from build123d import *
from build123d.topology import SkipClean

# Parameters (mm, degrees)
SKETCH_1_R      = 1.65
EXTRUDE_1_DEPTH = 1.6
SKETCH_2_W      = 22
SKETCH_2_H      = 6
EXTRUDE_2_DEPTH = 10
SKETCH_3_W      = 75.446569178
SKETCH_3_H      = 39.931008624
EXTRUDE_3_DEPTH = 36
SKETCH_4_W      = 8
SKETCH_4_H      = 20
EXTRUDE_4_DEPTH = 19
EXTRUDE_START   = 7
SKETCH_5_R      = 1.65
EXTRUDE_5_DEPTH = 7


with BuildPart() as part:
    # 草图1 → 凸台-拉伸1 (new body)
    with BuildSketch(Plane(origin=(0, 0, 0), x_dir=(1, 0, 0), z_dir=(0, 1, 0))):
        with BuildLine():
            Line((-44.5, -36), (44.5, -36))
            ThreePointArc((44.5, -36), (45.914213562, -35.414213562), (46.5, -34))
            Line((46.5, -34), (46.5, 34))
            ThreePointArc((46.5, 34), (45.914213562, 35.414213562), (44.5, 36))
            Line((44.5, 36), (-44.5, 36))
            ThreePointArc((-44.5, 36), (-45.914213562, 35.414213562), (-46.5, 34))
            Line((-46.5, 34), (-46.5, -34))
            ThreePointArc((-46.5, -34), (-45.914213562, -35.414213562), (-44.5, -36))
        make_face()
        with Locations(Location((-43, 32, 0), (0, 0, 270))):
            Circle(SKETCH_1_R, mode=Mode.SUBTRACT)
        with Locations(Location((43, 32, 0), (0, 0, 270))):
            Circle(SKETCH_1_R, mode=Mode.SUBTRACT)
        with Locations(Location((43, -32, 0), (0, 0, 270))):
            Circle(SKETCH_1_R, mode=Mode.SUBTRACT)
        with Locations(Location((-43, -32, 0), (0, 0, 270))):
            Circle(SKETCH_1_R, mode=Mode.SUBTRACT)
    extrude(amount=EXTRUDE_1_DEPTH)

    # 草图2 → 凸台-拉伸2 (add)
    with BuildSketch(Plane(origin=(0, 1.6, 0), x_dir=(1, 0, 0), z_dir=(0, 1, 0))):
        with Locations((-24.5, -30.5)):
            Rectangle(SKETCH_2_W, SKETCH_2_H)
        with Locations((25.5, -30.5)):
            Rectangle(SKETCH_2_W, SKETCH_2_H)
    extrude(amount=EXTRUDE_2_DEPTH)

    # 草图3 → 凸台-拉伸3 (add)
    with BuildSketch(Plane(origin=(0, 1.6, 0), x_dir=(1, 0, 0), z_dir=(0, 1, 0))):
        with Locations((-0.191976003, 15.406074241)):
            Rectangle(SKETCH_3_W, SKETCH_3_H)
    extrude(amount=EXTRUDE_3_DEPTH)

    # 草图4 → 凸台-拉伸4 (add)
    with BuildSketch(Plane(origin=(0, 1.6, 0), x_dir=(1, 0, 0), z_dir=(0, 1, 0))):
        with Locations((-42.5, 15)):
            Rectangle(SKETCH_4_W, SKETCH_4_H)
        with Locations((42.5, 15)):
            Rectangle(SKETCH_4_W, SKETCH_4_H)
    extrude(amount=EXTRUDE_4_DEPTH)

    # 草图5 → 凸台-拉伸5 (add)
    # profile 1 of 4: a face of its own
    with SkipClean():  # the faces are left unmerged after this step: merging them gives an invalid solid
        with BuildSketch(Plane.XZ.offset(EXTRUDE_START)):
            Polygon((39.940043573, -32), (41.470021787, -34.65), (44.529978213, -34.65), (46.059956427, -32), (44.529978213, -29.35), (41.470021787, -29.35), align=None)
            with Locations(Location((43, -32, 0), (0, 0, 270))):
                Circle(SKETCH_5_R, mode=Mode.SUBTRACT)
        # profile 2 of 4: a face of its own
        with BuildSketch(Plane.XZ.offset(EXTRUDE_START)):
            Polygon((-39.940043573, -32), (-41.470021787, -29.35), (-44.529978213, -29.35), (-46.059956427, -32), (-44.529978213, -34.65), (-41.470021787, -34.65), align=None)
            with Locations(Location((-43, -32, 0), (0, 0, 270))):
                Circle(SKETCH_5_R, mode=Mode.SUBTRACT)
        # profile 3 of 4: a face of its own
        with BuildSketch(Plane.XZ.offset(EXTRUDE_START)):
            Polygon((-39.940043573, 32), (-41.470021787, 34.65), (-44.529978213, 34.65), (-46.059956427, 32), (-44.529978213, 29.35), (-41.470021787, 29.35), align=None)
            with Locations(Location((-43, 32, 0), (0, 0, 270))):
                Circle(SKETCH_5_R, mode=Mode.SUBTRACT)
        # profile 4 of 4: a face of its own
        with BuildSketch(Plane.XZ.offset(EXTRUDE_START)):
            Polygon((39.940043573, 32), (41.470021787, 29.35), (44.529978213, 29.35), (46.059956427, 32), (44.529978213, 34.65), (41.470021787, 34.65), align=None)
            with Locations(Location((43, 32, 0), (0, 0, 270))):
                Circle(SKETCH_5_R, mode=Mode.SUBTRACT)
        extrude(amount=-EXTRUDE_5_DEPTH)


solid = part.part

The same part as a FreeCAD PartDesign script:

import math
import FreeCAD as App
import Part
import Sketcher
from FreeCAD import Vector
Q = App.Units.Quantity

doc = App.newDocument("Part")
body = doc.addObject("PartDesign::Body", "Body")

# Sketch on XZ plane
sketch1 = body.newObject("Sketcher::SketchObject", "Sketch")
sketch1.AttachmentSupport = (doc.getObject("XZ_Plane"), [""])
sketch1.MapMode = "FlatFace"
sketch1.addGeometry([
    Part.LineSegment(Vector(-44.5, 36, 0), Vector(44.5, 36, 0)),  # 0
    Part.ArcOfCircle(Part.Circle(Vector(44.5, 34, 0), Vector(0, 0, 1), 2), math.radians(0), math.radians(90)),  # 1
    Part.LineSegment(Vector(46.5, 34, 0), Vector(46.5, -34, 0)),  # 2
    Part.ArcOfCircle(Part.Circle(Vector(44.5, -34, 0), Vector(0, 0, 1), 2), math.radians(-90), math.radians(0)),  # 3
    Part.LineSegment(Vector(44.5, -36, 0), Vector(-44.5, -36, 0)),  # 4
    Part.ArcOfCircle(Part.Circle(Vector(-44.5, -34, 0), Vector(0, 0, 1), 2), math.radians(-180), math.radians(-90)),  # 5
    Part.LineSegment(Vector(-46.5, -34, 0), Vector(-46.5, 34, 0)),  # 6
    Part.ArcOfCircle(Part.Circle(Vector(-44.5, 34, 0), Vector(0, 0, 1), 2), math.radians(90), math.radians(180)),  # 7
    Part.Circle(Vector(-43, 32, 0), Vector(0, 0, 1), 1.6),  # 8
    Part.Circle(Vector(43, 32, 0), Vector(0, 0, 1), 1.6),  # 9
    Part.Circle(Vector(-43, -32, 0), Vector(0, 0, 1), 1.6),  # 10
    Part.Circle(Vector(43, -32, 0), Vector(0, 0, 1), 1.6),  # 11
], False)
sketch1.addConstraint([
    Sketcher.Constraint("Tangent", 0, 2, 1, 2),
    Sketcher.Constraint("Tangent", 1, 1, 2, 1),
    Sketcher.Constraint("Tangent", 2, 2, 3, 2),
    Sketcher.Constraint("Tangent", 3, 1, 4, 1),
    Sketcher.Constraint("Tangent", 4, 2, 5, 2),
    Sketcher.Constraint("Tangent", 5, 1, 6, 1),
    Sketcher.Constraint("Tangent", 6, 2, 7, 2),
    Sketcher.Constraint("Tangent", 7, 1, 0, 1),
    Sketcher.Constraint("Horizontal", 0),
    Sketcher.Constraint("Vertical", 2),
    Sketcher.Constraint("Horizontal", 4),
    Sketcher.Constraint("Vertical", 6),
    Sketcher.Constraint("Equal", 1, 3),
    Sketcher.Constraint("Equal", 3, 5),
    Sketcher.Constraint("Equal", 5, 7),
    Sketcher.Constraint("Equal", 8, 9),
    Sketcher.Constraint("Equal", 9, 10),
    Sketcher.Constraint("Equal", 10, 11),
    Sketcher.Constraint("Symmetric", 1, 3, 5, 3, -1, 1),
    Sketcher.Constraint("Symmetric", 9, 3, 10, 3, -1, 1),
    Sketcher.Constraint("Symmetric", 8, 3, 11, 3, -1, 1),
    Sketcher.Constraint("Symmetric", 8, 3, 9, 3, -2),
    Sketcher.Constraint("Radius", 1, 2.0),
    Sketcher.Constraint("Diameter", 8, 3.3),
    Sketcher.Constraint("DistanceX", 0, 1, 0, 2, 89.0),
    Sketcher.Constraint("DistanceY", 2, 2, 2, 1, 68.0),
    Sketcher.Constraint("DistanceX", 8, 3, -1, 1, 43.0),
    Sketcher.Constraint("DistanceY", -1, 1, 8, 3, 32.0),
])
pad1 = body.newObject("PartDesign::Pad", "Pad")
pad1.Profile = sketch1
pad1.Length = 1.6
pad1.Reversed = True

# Sketch on XZ plane
sketch2 = body.newObject("Sketcher::SketchObject", "Sketch001")
sketch2.AttachmentSupport = (doc.getObject("XZ_Plane"), [""])
sketch2.MapMode = "FlatFace"
sketch2.AttachmentOffset = App.Placement(Vector(0, 0, -1.6), App.Rotation())
sketch2.addGeometry([
    Part.LineSegment(Vector(-36, 28, 0), Vector(-36, 34, 0)),  # 0
    Part.LineSegment(Vector(-36, 34, 0), Vector(-14, 34, 0)),  # 1
    Part.LineSegment(Vector(-14, 34, 0), Vector(-14, 28, 0)),  # 2
    Part.LineSegment(Vector(-14, 28, 0), Vector(-36, 28, 0)),  # 3
    Part.LineSegment(Vector(14, 28, 0), Vector(14, 34, 0)),  # 4
    Part.LineSegment(Vector(14, 34, 0), Vector(36, 34, 0)),  # 5
    Part.LineSegment(Vector(36, 34, 0), Vector(36, 28, 0)),  # 6
    Part.LineSegment(Vector(36, 28, 0), Vector(14, 28, 0)),  # 7
], False)
sketch2.addConstraint([
    Sketcher.Constraint("Coincident", 0, 2, 1, 1),
    Sketcher.Constraint("Coincident", 1, 2, 2, 1),
    Sketcher.Constraint("Coincident", 2, 2, 3, 1),
    Sketcher.Constraint("Coincident", 3, 2, 0, 1),
    Sketcher.Constraint("Coincident", 4, 2, 5, 1),
    Sketcher.Constraint("Coincident", 5, 2, 6, 1),
    Sketcher.Constraint("Coincident", 6, 2, 7, 1),
    Sketcher.Constraint("Coincident", 7, 2, 4, 1),
    Sketcher.Constraint("Vertical", 0),
    Sketcher.Constraint("Horizontal", 1),
    Sketcher.Constraint("Vertical", 2),
    Sketcher.Constraint("Horizontal", 3),
    Sketcher.Constraint("Vertical", 4),
    Sketcher.Constraint("Horizontal", 5),
    Sketcher.Constraint("Vertical", 6),
    Sketcher.Constraint("Horizontal", 7),
    Sketcher.Constraint("Horizontal", 1, 2, 4, 2),
    Sketcher.Constraint("Horizontal", 3, 2, 6, 2),
    Sketcher.Constraint("Equal", 3, 5),
    Sketcher.Constraint("DistanceX", 1, 1, 1, 2, 22.0),
    Sketcher.Constraint("DistanceY", 0, 1, 0, 2, 6.0),
    Sketcher.Constraint("DistanceX", 1, 2, 4, 2, 28.0),
    Sketcher.Constraint("DistanceX", 0, 2, -1, 1, 35.5),
    Sketcher.Constraint("DistanceY", -1, 1, 0, 2, 33.5),
])
pad2 = body.newObject("PartDesign::Pad", "Pad001")
pad2.Profile = sketch2
pad2.Length = 10
pad2.Reversed = True

# Sketch on XZ plane
sketch3 = body.newObject("Sketcher::SketchObject", "Sketch002")
sketch3.AttachmentSupport = (doc.getObject("XZ_Plane"), [""])
sketch3.MapMode = "FlatFace"
sketch3.AttachmentOffset = App.Placement(Vector(0, 0, -1.6), App.Rotation())
sketch3.addGeometry([
    Part.LineSegment(Vector(-38, -35, 0), Vector(-38, 5, 0)),
    Part.LineSegment(Vector(-38, 5, 0), Vector(38, 5, 0)),
    Part.LineSegment(Vector(38, 5, 0), Vector(38, -35, 0)),
    Part.LineSegment(Vector(38, -35, 0), Vector(-38, -35, 0)),
], False)
sketch3.addConstraint([
    Sketcher.Constraint("Coincident", 0, 2, 1, 1),
    Sketcher.Constraint("Coincident", 1, 2, 2, 1),
    Sketcher.Constraint("Coincident", 2, 2, 3, 1),
    Sketcher.Constraint("Coincident", 3, 2, 0, 1),
    Sketcher.Constraint("Vertical", 0),
    Sketcher.Constraint("Horizontal", 1),
    Sketcher.Constraint("Vertical", 2),
    Sketcher.Constraint("Horizontal", 3),
    Sketcher.Constraint("DistanceX", 1, 1, 1, 2, 75.446569),
    Sketcher.Constraint("DistanceY", 0, 1, 0, 2, 39.931009),
    Sketcher.Constraint("DistanceX", 0, 2, -1, 1, 37.915261),
    Sketcher.Constraint("DistanceY", -1, 1, 0, 2, 4.55943),
])
pad3 = body.newObject("PartDesign::Pad", "Pad002")
pad3.Profile = sketch3
pad3.Length = 36
pad3.Reversed = True

# Sketch on XZ plane
sketch4 = body.newObject("Sketcher::SketchObject", "Sketch003")
sketch4.AttachmentSupport = (doc.getObject("XZ_Plane"), [""])
sketch4.MapMode = "FlatFace"
sketch4.AttachmentOffset = App.Placement(Vector(0, 0, -1.6), App.Rotation())
sketch4.addGeometry([
    Part.LineSegment(Vector(-46, -25, 0), Vector(-46, -5, 0)),  # 0
    Part.LineSegment(Vector(-46, -5, 0), Vector(-38, -5, 0)),  # 1
    Part.LineSegment(Vector(-38, -5, 0), Vector(-38, -25, 0)),  # 2
    Part.LineSegment(Vector(-38, -25, 0), Vector(-46, -25, 0)),  # 3
    Part.LineSegment(Vector(38, -25, 0), Vector(38, -5, 0)),  # 4
    Part.LineSegment(Vector(38, -5, 0), Vector(46, -5, 0)),  # 5
    Part.LineSegment(Vector(46, -5, 0), Vector(46, -25, 0)),  # 6
    Part.LineSegment(Vector(46, -25, 0), Vector(38, -25, 0)),  # 7
], False)
sketch4.addConstraint([
    Sketcher.Constraint("Coincident", 0, 2, 1, 1),
    Sketcher.Constraint("Coincident", 1, 2, 2, 1),
    Sketcher.Constraint("Coincident", 2, 2, 3, 1),
    Sketcher.Constraint("Coincident", 3, 2, 0, 1),
    Sketcher.Constraint("Coincident", 4, 2, 5, 1),
    Sketcher.Constraint("Coincident", 5, 2, 6, 1),
    Sketcher.Constraint("Coincident", 6, 2, 7, 1),
    Sketcher.Constraint("Coincident", 7, 2, 4, 1),
    Sketcher.Constraint("Vertical", 0),
    Sketcher.Constraint("Horizontal", 1),
    Sketcher.Constraint("Vertical", 2),
    Sketcher.Constraint("Horizontal", 3),
    Sketcher.Constraint("Vertical", 4),
    Sketcher.Constraint("Horizontal", 5),
    Sketcher.Constraint("Vertical", 6),
    Sketcher.Constraint("Horizontal", 7),
    Sketcher.Constraint("Symmetric", 1, 2, 4, 2, -2),
    Sketcher.Constraint("Symmetric", 3, 2, 6, 2, -2),
    Sketcher.Constraint("DistanceX", 1, 1, 1, 2, 8.0),
    Sketcher.Constraint("DistanceY", 0, 1, 0, 2, 20.0),
    Sketcher.Constraint("DistanceY", 0, 2, -1, 1, 5.0),
    Sketcher.Constraint("DistanceX", 1, 2, 4, 2, 77.0),
])
pad4 = body.newObject("PartDesign::Pad", "Pad003")
pad4.Profile = sketch4
pad4.Length = 19
pad4.Reversed = True

# Sketch on XZ plane
sketch5 = body.newObject("Sketcher::SketchObject", "Sketch004")
sketch5.AttachmentSupport = (doc.getObject("XZ_Plane"), [""])
sketch5.MapMode = "FlatFace"
sketch5.AttachmentOffset = App.Placement(Vector(0, 0, 7), App.Rotation())
sketch5.addGeometry([
    Part.LineSegment(Vector(39.9, -32, 0), Vector(41.5, -34.6, 0)),  # 0
    Part.LineSegment(Vector(41.5, -34.6, 0), Vector(44.5, -34.6, 0)),  # 1
    Part.LineSegment(Vector(44.5, -34.6, 0), Vector(46.1, -32, 0)),  # 2
    Part.LineSegment(Vector(46.1, -32, 0), Vector(44.5, -29.4, 0)),  # 3
    Part.LineSegment(Vector(44.5, -29.4, 0), Vector(41.5, -29.4, 0)),  # 4
    Part.LineSegment(Vector(41.5, -29.4, 0), Vector(39.9, -32, 0)),  # 5
    Part.Circle(Vector(43, -32, 0), Vector(0, 0, 1), 1.6),  # 6
    Part.LineSegment(Vector(-39.9, -32, 0), Vector(-41.5, -29.4, 0)),  # 7
    Part.LineSegment(Vector(-41.5, -29.4, 0), Vector(-44.5, -29.4, 0)),  # 8
    Part.LineSegment(Vector(-44.5, -29.4, 0), Vector(-46.1, -32, 0)),  # 9
    Part.LineSegment(Vector(-46.1, -32, 0), Vector(-44.5, -34.6, 0)),  # 10
    Part.LineSegment(Vector(-44.5, -34.6, 0), Vector(-41.5, -34.6, 0)),  # 11
    Part.LineSegment(Vector(-41.5, -34.6, 0), Vector(-39.9, -32, 0)),  # 12
    Part.Circle(Vector(-43, -32, 0), Vector(0, 0, 1), 1.6),  # 13
    Part.LineSegment(Vector(-39.9, 32, 0), Vector(-41.5, 34.6, 0)),  # 14
    Part.LineSegment(Vector(-41.5, 34.6, 0), Vector(-44.5, 34.6, 0)),  # 15
    Part.LineSegment(Vector(-44.5, 34.6, 0), Vector(-46.1, 32, 0)),  # 16
    Part.LineSegment(Vector(-46.1, 32, 0), Vector(-44.5, 29.4, 0)),  # 17
    Part.LineSegment(Vector(-44.5, 29.4, 0), Vector(-41.5, 29.4, 0)),  # 18
    Part.LineSegment(Vector(-41.5, 29.4, 0), Vector(-39.9, 32, 0)),  # 19
    Part.Circle(Vector(-43, 32, 0), Vector(0, 0, 1), 1.6),  # 20
    Part.LineSegment(Vector(39.9, 32, 0), Vector(41.5, 29.4, 0)),  # 21
    Part.LineSegment(Vector(41.5, 29.4, 0), Vector(44.5, 29.4, 0)),  # 22
    Part.LineSegment(Vector(44.5, 29.4, 0), Vector(46.1, 32, 0)),  # 23
    Part.LineSegment(Vector(46.1, 32, 0), Vector(44.5, 34.6, 0)),  # 24
    Part.LineSegment(Vector(44.5, 34.6, 0), Vector(41.5, 34.6, 0)),  # 25
    Part.LineSegment(Vector(41.5, 34.6, 0), Vector(39.9, 32, 0)),  # 26
    Part.Circle(Vector(43, 32, 0), Vector(0, 0, 1), 1.6),  # 27
], False)
sketch5.addConstraint([
    Sketcher.Constraint("Coincident", 0, 2, 1, 1),
    Sketcher.Constraint("Coincident", 1, 2, 2, 1),
    Sketcher.Constraint("Coincident", 2, 2, 3, 1),
    Sketcher.Constraint("Coincident", 3, 2, 4, 1),
    Sketcher.Constraint("Coincident", 4, 2, 5, 1),
    Sketcher.Constraint("Coincident", 5, 2, 0, 1),
    Sketcher.Constraint("Coincident", 7, 2, 8, 1),
    Sketcher.Constraint("Coincident", 8, 2, 9, 1),
    Sketcher.Constraint("Coincident", 9, 2, 10, 1),
    Sketcher.Constraint("Coincident", 10, 2, 11, 1),
    Sketcher.Constraint("Coincident", 11, 2, 12, 1),
    Sketcher.Constraint("Coincident", 12, 2, 7, 1),
    Sketcher.Constraint("Coincident", 14, 2, 15, 1),
    Sketcher.Constraint("Coincident", 15, 2, 16, 1),
    Sketcher.Constraint("Coincident", 16, 2, 17, 1),
    Sketcher.Constraint("Coincident", 17, 2, 18, 1),
    Sketcher.Constraint("Coincident", 18, 2, 19, 1),
    Sketcher.Constraint("Coincident", 19, 2, 14, 1),
    Sketcher.Constraint("Coincident", 21, 2, 22, 1),
    Sketcher.Constraint("Coincident", 22, 2, 23, 1),
    Sketcher.Constraint("Coincident", 23, 2, 24, 1),
    Sketcher.Constraint("Coincident", 24, 2, 25, 1),
    Sketcher.Constraint("Coincident", 25, 2, 26, 1),
    Sketcher.Constraint("Coincident", 26, 2, 21, 1),
    Sketcher.Constraint("Horizontal", 1),
    Sketcher.Constraint("Horizontal", 4),
    Sketcher.Constraint("Horizontal", 8),
    Sketcher.Constraint("Horizontal", 11),
    Sketcher.Constraint("Horizontal", 15),
    Sketcher.Constraint("Horizontal", 18),
    Sketcher.Constraint("Horizontal", 22),
    Sketcher.Constraint("Horizontal", 25),
    Sketcher.Constraint("Equal", 6, 13),
    Sketcher.Constraint("Equal", 13, 20),
    Sketcher.Constraint("Equal", 20, 27),
    Sketcher.Constraint("Symmetric", 6, 3, 20, 3, -1, 1),
    Sketcher.Constraint("Symmetric", 13, 3, 27, 3, -1, 1),
    Sketcher.Constraint("Symmetric", 0, 2, 14, 2, -1, 1),
    Sketcher.Constraint("Symmetric", 2, 2, 16, 2, -1, 1),
    Sketcher.Constraint("Symmetric", 3, 2, 17, 2, -1, 1),
    Sketcher.Constraint("Symmetric", 5, 2, 19, 2, -1, 1),
    Sketcher.Constraint("Symmetric", 7, 2, 21, 2, -1, 1),
    Sketcher.Constraint("Symmetric", 9, 2, 23, 2, -1, 1),
    Sketcher.Constraint("Symmetric", 10, 2, 24, 2, -1, 1),
    Sketcher.Constraint("Symmetric", 12, 2, 26, 2, -1, 1),
    Sketcher.Constraint("Symmetric", 6, 3, 13, 3, -2),
    Sketcher.Constraint("Symmetric", 4, 2, 7, 2, -2),
    Sketcher.Constraint("Symmetric", 2, 2, 9, 2, -2),
    Sketcher.Constraint("Symmetric", 1, 2, 10, 2, -2),
    Sketcher.Constraint("Symmetric", 5, 2, 12, 2, -2),
    Sketcher.Constraint("Parallel", 0, 3),
    Sketcher.Constraint("Parallel", 2, 5),
    Sketcher.Constraint("Parallel", 3, 7),
    Sketcher.Constraint("Parallel", 5, 9),
    Sketcher.Constraint("Parallel", 9, 12),
    Sketcher.Constraint("Parallel", 12, 16),
    Sketcher.Constraint("Parallel", 16, 19),
    Sketcher.Constraint("Parallel", 19, 23),
    Sketcher.Constraint("Parallel", 23, 26),
    Sketcher.Constraint("Horizontal", 13, 3, 2, 2),
    Sketcher.Constraint("Horizontal", 2, 2, 5, 2),
    Sketcher.Constraint("Vertical", 1, 2, 3, 2),
    Sketcher.Constraint("Diameter", 6, 3.3),
    Sketcher.Constraint("Angle", 0, Q("-60 deg")),
    Sketcher.Constraint("DistanceX", -1, 1, 6, 3, 43.0),
    Sketcher.Constraint("DistanceY", 6, 3, -1, 1, 32.0),
    Sketcher.Constraint("DistanceX", 8, 2, 4, 2, 86.0),
    Sketcher.Constraint("DistanceY", 1, 2, 3, 2, 5.3),
    Sketcher.Constraint("DistanceX", 1, 1, 1, 2, 3.059956),
])
pad5 = body.newObject("PartDesign::Pad", "Pad004")
pad5.Profile = sketch5
pad5.Length = 7
pad5.Reversed = True

doc.recompute()
